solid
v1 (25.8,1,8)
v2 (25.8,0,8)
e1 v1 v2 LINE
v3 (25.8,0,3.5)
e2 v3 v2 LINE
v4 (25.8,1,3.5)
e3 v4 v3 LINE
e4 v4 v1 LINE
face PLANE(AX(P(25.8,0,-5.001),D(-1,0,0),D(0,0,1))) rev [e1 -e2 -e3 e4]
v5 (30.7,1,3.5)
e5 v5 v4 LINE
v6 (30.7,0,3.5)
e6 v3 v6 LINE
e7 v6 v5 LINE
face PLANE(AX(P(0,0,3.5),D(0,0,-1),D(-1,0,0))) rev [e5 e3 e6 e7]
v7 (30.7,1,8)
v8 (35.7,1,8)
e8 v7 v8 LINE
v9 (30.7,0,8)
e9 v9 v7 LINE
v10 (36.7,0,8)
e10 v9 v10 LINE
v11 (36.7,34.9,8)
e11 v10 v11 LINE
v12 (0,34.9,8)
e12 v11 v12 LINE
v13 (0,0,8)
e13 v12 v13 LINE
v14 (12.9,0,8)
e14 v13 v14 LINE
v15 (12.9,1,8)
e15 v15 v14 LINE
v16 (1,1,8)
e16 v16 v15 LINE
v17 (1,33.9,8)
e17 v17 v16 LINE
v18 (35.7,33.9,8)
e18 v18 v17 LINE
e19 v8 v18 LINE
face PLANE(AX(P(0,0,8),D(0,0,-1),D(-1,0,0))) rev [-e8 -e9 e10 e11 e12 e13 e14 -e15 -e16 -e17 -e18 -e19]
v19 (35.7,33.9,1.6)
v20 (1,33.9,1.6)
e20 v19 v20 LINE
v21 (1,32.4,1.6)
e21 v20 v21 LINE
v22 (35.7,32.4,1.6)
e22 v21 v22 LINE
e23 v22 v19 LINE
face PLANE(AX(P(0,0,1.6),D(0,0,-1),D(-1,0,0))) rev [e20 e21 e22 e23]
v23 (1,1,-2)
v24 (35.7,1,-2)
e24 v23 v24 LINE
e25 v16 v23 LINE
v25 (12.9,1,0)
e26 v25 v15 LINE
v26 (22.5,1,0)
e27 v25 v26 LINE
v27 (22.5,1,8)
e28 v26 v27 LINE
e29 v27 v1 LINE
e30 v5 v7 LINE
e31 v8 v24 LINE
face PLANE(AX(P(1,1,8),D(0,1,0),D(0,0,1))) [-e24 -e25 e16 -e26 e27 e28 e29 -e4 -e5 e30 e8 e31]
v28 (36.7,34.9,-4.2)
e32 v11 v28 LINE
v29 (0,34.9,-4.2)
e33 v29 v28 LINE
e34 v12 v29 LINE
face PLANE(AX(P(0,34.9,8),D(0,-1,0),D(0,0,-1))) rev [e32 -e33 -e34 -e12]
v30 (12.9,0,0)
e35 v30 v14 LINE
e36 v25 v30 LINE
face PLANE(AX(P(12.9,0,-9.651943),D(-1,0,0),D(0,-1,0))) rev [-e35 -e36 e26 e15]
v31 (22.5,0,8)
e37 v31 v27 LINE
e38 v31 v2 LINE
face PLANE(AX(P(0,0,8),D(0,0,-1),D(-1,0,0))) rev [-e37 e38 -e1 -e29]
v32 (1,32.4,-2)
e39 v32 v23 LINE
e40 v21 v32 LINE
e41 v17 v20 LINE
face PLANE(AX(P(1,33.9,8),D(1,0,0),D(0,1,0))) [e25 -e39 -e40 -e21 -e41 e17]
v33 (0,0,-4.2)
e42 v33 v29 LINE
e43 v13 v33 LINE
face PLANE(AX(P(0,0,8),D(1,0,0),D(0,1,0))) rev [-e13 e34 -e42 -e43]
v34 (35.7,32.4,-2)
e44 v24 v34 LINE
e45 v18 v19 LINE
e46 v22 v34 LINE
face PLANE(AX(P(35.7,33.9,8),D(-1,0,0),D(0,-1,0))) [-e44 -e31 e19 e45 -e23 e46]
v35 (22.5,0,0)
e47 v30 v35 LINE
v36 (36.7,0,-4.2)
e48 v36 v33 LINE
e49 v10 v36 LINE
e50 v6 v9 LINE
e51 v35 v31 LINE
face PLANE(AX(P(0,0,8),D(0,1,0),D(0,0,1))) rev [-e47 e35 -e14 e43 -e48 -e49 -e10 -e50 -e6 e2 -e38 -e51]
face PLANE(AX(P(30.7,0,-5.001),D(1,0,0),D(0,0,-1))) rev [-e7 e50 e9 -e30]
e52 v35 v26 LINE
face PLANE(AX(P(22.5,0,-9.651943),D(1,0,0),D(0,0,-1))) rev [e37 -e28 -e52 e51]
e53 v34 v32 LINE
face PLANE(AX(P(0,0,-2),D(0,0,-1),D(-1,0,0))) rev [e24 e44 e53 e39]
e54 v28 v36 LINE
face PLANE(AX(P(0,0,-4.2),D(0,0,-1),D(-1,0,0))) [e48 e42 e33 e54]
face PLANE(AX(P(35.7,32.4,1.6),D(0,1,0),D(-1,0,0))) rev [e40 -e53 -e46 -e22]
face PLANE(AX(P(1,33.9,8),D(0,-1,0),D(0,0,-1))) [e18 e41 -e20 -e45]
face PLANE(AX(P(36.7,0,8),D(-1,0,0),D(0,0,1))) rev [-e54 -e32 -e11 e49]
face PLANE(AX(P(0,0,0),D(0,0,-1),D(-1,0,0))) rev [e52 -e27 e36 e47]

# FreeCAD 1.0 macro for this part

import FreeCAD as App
import Part
import Sketcher
from FreeCAD import Vector

doc = App.newDocument("Part")
body = doc.addObject("PartDesign::Body", "Body")

# Sketch on XY plane
sketch1 = doc.addObject("Sketcher::SketchObject", "Sketch")
body.addObject(sketch1)
sketch1.AttachmentSupport = (doc.XY_Plane, [""])
sketch1.MapMode = "FlatFace"
sketch1.addGeometry(Part.LineSegment(Vector(0, 35, 0), Vector(0, 0, 0)), False)
sketch1.addGeometry(Part.LineSegment(Vector(0, 0, 0), Vector(37, 0, 0)), False)
sketch1.addGeometry(Part.LineSegment(Vector(37, 0, 0), Vector(37, 35, 0)), False)
sketch1.addGeometry(Part.LineSegment(Vector(37, 35, 0), Vector(0, 35, 0)), False)
sketch1.addGeometry(Part.LineSegment(Vector(36, 1, 0), Vector(1, 1, 0)), False)
sketch1.addGeometry(Part.LineSegment(Vector(1, 1, 0), Vector(1, 34, 0)), False)
sketch1.addGeometry(Part.LineSegment(Vector(1, 34, 0), Vector(36, 34, 0)), False)
sketch1.addGeometry(Part.LineSegment(Vector(36, 34, 0), Vector(36, 1, 0)), False)
sketch1.addConstraint(Sketcher.Constraint("Coincident", 0, 2, 1, 1))
sketch1.addConstraint(Sketcher.Constraint("Coincident", 1, 2, 2, 1))
sketch1.addConstraint(Sketcher.Constraint("Coincident", 2, 2, 3, 1))
sketch1.addConstraint(Sketcher.Constraint("Coincident", 3, 2, 0, 1))
sketch1.addConstraint(Sketcher.Constraint("Coincident", 4, 2, 5, 1))
sketch1.addConstraint(Sketcher.Constraint("Coincident", 5, 2, 6, 1))
sketch1.addConstraint(Sketcher.Constraint("Coincident", 6, 2, 7, 1))
sketch1.addConstraint(Sketcher.Constraint("Coincident", 7, 2, 4, 1))
sketch1.addConstraint(Sketcher.Constraint("Vertical", 0))
sketch1.addConstraint(Sketcher.Constraint("Horizontal", 1))
sketch1.addConstraint(Sketcher.Constraint("Vertical", 2))
sketch1.addConstraint(Sketcher.Constraint("Horizontal", 3))
sketch1.addConstraint(Sketcher.Constraint("Horizontal", 4))
sketch1.addConstraint(Sketcher.Constraint("Vertical", 5))
sketch1.addConstraint(Sketcher.Constraint("Horizontal", 6))
sketch1.addConstraint(Sketcher.Constraint("Vertical", 7))
sketch1.addConstraint(Sketcher.Constraint("Coincident", 0, 2, -1, 1))
sketch1.addConstraint(Sketcher.Constraint("DistanceX", 1, 1, 1, 2, 36.7))
sketch1.addConstraint(Sketcher.Constraint("DistanceX", 4, 2, 4, 1, 34.7))
sketch1.addConstraint(Sketcher.Constraint("DistanceY", 0, 2, 0, 1, 34.9))
sketch1.addConstraint(Sketcher.Constraint("DistanceY", 5, 1, 5, 2, 32.9))
sketch1.addConstraint(Sketcher.Constraint("DistanceX", -1, 1, 4, 2, 1.0))
sketch1.addConstraint(Sketcher.Constraint("DistanceY", -1, 1, 4, 2, 1.0))
pad1 = doc.addObject("PartDesign::Pad", "Pad")
body.addObject(pad1)
pad1.Profile = sketch1
pad1.Length = 8

# Sketch on XY plane
sketch2 = doc.addObject("Sketcher::SketchObject", "Sketch001")
body.addObject(sketch2)
sketch2.AttachmentSupport = (doc.XY_Plane, [""])
sketch2.MapMode = "FlatFace"
sketch2.addGeometry(Part.LineSegment(Vector(37, 35, 0), Vector(37, 0, 0)), False)
sketch2.addGeometry(Part.LineSegment(Vector(37, 0, 0), Vector(0, 0, 0)), False)
sketch2.addGeometry(Part.LineSegment(Vector(0, 0, 0), Vector(0, 35, 0)), False)
sketch2.addGeometry(Part.LineSegment(Vector(0, 35, 0), Vector(37, 35, 0)), False)
sketch2.addConstraint(Sketcher.Constraint("Coincident", 0, 2, 1, 1))
sketch2.addConstraint(Sketcher.Constraint("Coincident", 1, 2, 2, 1))
sketch2.addConstraint(Sketcher.Constraint("Coincident", 2, 2, 3, 1))
sketch2.addConstraint(Sketcher.Constraint("Coincident", 3, 2, 0, 1))
sketch2.addConstraint(Sketcher.Constraint("Vertical", 0))
sketch2.addConstraint(Sketcher.Constraint("Horizontal", 1))
sketch2.addConstraint(Sketcher.Constraint("Vertical", 2))
sketch2.addConstraint(Sketcher.Constraint("Horizontal", 3))
sketch2.addConstraint(Sketcher.Constraint("Coincident", 1, 2, -1, 1))
sketch2.addConstraint(Sketcher.Constraint("DistanceX", 1, 2, 1, 1, 36.7))
sketch2.addConstraint(Sketcher.Constraint("DistanceY", 0, 2, 0, 1, 34.9))
pad2 = doc.addObject("PartDesign::Pad", "Pad001")
body.addObject(pad2)
pad2.Profile = sketch2
pad2.Length = 4.2
pad2.Reversed = True

# Sketch on XY plane
sketch3 = doc.addObject("Sketcher::SketchObject", "Sketch002")
body.addObject(sketch3)
sketch3.AttachmentSupport = (doc.XY_Plane, [""])
sketch3.MapMode = "FlatFace"
sketch3.AttachmentOffset = App.Placement(Vector(0, 0, 8), App.Rotation())
sketch3.addGeometry(Part.LineSegment(Vector(25.8, 1, 0), Vector(25.8, 0, 0)), False)
sketch3.addGeometry(Part.LineSegment(Vector(25.8, 0, 0), Vector(30.7, 0, 0)), False)
sketch3.addGeometry(Part.LineSegment(Vector(30.7, 0, 0), Vector(30.7, 1, 0)), False)
sketch3.addGeometry(Part.LineSegment(Vector(30.7, 1, 0), Vector(25.8, 1, 0)), False)
sketch3.addConstraint(Sketcher.Constraint("Coincident", 0, 2, 1, 1))
sketch3.addConstraint(Sketcher.Constraint("Coincident", 1, 2, 2, 1))
sketch3.addConstraint(Sketcher.Constraint("Coincident", 2, 2, 3, 1))
sketch3.addConstraint(Sketcher.Constraint("Coincident", 3, 2, 0, 1))
sketch3.addConstraint(Sketcher.Constraint("Vertical", 0))
sketch3.addConstraint(Sketcher.Constraint("Horizontal", 1))
sketch3.addConstraint(Sketcher.Constraint("Vertical", 2))
sketch3.addConstraint(Sketcher.Constraint("Horizontal", 3))
sketch3.addConstraint(Sketcher.Constraint("PointOnObject", 0, 2, -1))
sketch3.addConstraint(Sketcher.Constraint("DistanceY", 0, 2, 0, 1, 1.0))
sketch3.addConstraint(Sketcher.Constraint("DistanceX", 1, 1, 1, 2, 4.9))
sketch3.addConstraint(Sketcher.Constraint("DistanceX", -1, 1, 0, 2, 25.8))
pocket1 = doc.addObject("PartDesign::Pocket", "Pocket")
body.addObject(pocket1)
pocket1.Profile = sketch3
pocket1.Length = 4.5

# Sketch on XY plane
sketch4 = doc.addObject("Sketcher::SketchObject", "Sketch003")
body.addObject(sketch4)
sketch4.AttachmentSupport = (doc.XY_Plane, [""])
sketch4.MapMode = "FlatFace"
sketch4.AttachmentOffset = App.Placement(Vector(0, 0, 8), App.Rotation())
sketch4.addGeometry(Part.LineSegment(Vector(12.9, 1, 0), Vector(12.9, 0, 0)), False)
sketch4.addGeometry(Part.LineSegment(Vector(12.9, 0, 0), Vector(22.5, 0, 0)), False)
sketch4.addGeometry(Part.LineSegment(Vector(22.5, 0, 0), Vector(22.5, 1, 0)), False)
sketch4.addGeometry(Part.LineSegment(Vector(22.5, 1, 0), Vector(12.9, 1, 0)), False)
sketch4.addConstraint(Sketcher.Constraint("Coincident", 0, 2, 1, 1))
sketch4.addConstraint(Sketcher.Constraint("Coincident", 1, 2, 2, 1))
sketch4.addConstraint(Sketcher.Constraint("Coincident", 2, 2, 3, 1))
sketch4.addConstraint(Sketcher.Constraint("Coincident", 3, 2, 0, 1))
sketch4.addConstraint(Sketcher.Constraint("Vertical", 0))
sketch4.addConstraint(Sketcher.Constraint("Horizontal", 1))
sketch4.addConstraint(Sketcher.Constraint("Vertical", 2))
sketch4.addConstraint(Sketcher.Constraint("Horizontal", 3))
sketch4.addConstraint(Sketcher.Constraint("PointOnObject", 0, 2, -1))
sketch4.addConstraint(Sketcher.Constraint("DistanceY", 0, 2, 0, 1, 1.0))
sketch4.addConstraint(Sketcher.Constraint("DistanceX", 1, 1, 1, 2, 9.6))
sketch4.addConstraint(Sketcher.Constraint("DistanceX", -1, 1, 0, 2, 12.9))
pocket2 = doc.addObject("PartDesign::Pocket", "Pocket001")
body.addObject(pocket2)
pocket2.Profile = sketch4
pocket2.Length = 8

# Sketch on XY plane
sketch5 = doc.addObject("Sketcher::SketchObject", "Sketch004")
body.addObject(sketch5)
sketch5.AttachmentSupport = (doc.XY_Plane, [""])
sketch5.MapMode = "FlatFace"
sketch5.addGeometry(Part.LineSegment(Vector(1, 33.9, 0), Vector(1, 32.4, 0)), False)
sketch5.addGeometry(Part.LineSegment(Vector(1, 32.4, 0), Vector(35.7, 32.4, 0)), False)
sketch5.addGeometry(Part.LineSegment(Vector(35.7, 32.4, 0), Vector(35.7, 33.9, 0)), False)
sketch5.addGeometry(Part.LineSegment(Vector(35.7, 33.9, 0), Vector(1, 33.9, 0)), False)
sketch5.addConstraint(Sketcher.Constraint("Coincident", 0, 2, 1, 1))
sketch5.addConstraint(Sketcher.Constraint("Coincident", 1, 2, 2, 1))
sketch5.addConstraint(Sketcher.Constraint("Coincident", 2, 2, 3, 1))
sketch5.addConstraint(Sketcher.Constraint("Coincident", 3, 2, 0, 1))
sketch5.addConstraint(Sketcher.Constraint("Vertical", 0))
sketch5.addConstraint(Sketcher.Constraint("Horizontal", 1))
sketch5.addConstraint(Sketcher.Constraint("Vertical", 2))
sketch5.addConstraint(Sketcher.Constraint("Horizontal", 3))
sketch5.addConstraint(Sketcher.Constraint("DistanceX", 1, 1, 1, 2, 34.7))
sketch5.addConstraint(Sketcher.Constraint("DistanceY", 0, 2, 0, 1, 1.5))
sketch5.addConstraint(Sketcher.Constraint("DistanceX", -1, 1, 0, 2, 1.0))
sketch5.addConstraint(Sketcher.Constraint("DistanceY", -1, 1, 0, 2, 32.4))
pad3 = doc.addObject("PartDesign::Pad", "Pad002")
body.addObject(pad3)
pad3.Profile = sketch5
pad3.Length = 1.6

# Sketch on XY plane
sketch6 = doc.addObject("Sketcher::SketchObject", "Sketch005")
body.addObject(sketch6)
sketch6.AttachmentSupport = (doc.XY_Plane, [""])
sketch6.MapMode = "FlatFace"
sketch6.addGeometry(Part.LineSegment(Vector(1, 32, 0), Vector(1, 1, 0)), False)
sketch6.addGeometry(Part.LineSegment(Vector(1, 1, 0), Vector(36, 1, 0)), False)
sketch6.addGeometry(Part.LineSegment(Vector(36, 1, 0), Vector(36, 32, 0)), False)
sketch6.addGeometry(Part.LineSegment(Vector(36, 32, 0), Vector(1, 32, 0)), False)
sketch6.addConstraint(Sketcher.Constraint("Coincident", 0, 2, 1, 1))
sketch6.addConstraint(Sketcher.Constraint("Coincident", 1, 2, 2, 1))
sketch6.addConstraint(Sketcher.Constraint("Coincident", 2, 2, 3, 1))
sketch6.addConstraint(Sketcher.Constraint("Coincident", 3, 2, 0, 1))
sketch6.addConstraint(Sketcher.Constraint("Vertical", 0))
sketch6.addConstraint(Sketcher.Constraint("Horizontal", 1))
sketch6.addConstraint(Sketcher.Constraint("Vertical", 2))
sketch6.addConstraint(Sketcher.Constraint("Horizontal", 3))
sketch6.addConstraint(Sketcher.Constraint("DistanceX", 1, 1, 1, 2, 34.7))
sketch6.addConstraint(Sketcher.Constraint("DistanceY", 0, 2, 0, 1, 31.4))
sketch6.addConstraint(Sketcher.Constraint("DistanceX", -1, 1, 0, 2, 1.0))
sketch6.addConstraint(Sketcher.Constraint("DistanceY", -1, 1, 0, 2, 1.0))
pocket3 = doc.addObject("PartDesign::Pocket", "Pocket002")
body.addObject(pocket3)
pocket3.Profile = sketch6
pocket3.Length = 2

doc.recompute()
